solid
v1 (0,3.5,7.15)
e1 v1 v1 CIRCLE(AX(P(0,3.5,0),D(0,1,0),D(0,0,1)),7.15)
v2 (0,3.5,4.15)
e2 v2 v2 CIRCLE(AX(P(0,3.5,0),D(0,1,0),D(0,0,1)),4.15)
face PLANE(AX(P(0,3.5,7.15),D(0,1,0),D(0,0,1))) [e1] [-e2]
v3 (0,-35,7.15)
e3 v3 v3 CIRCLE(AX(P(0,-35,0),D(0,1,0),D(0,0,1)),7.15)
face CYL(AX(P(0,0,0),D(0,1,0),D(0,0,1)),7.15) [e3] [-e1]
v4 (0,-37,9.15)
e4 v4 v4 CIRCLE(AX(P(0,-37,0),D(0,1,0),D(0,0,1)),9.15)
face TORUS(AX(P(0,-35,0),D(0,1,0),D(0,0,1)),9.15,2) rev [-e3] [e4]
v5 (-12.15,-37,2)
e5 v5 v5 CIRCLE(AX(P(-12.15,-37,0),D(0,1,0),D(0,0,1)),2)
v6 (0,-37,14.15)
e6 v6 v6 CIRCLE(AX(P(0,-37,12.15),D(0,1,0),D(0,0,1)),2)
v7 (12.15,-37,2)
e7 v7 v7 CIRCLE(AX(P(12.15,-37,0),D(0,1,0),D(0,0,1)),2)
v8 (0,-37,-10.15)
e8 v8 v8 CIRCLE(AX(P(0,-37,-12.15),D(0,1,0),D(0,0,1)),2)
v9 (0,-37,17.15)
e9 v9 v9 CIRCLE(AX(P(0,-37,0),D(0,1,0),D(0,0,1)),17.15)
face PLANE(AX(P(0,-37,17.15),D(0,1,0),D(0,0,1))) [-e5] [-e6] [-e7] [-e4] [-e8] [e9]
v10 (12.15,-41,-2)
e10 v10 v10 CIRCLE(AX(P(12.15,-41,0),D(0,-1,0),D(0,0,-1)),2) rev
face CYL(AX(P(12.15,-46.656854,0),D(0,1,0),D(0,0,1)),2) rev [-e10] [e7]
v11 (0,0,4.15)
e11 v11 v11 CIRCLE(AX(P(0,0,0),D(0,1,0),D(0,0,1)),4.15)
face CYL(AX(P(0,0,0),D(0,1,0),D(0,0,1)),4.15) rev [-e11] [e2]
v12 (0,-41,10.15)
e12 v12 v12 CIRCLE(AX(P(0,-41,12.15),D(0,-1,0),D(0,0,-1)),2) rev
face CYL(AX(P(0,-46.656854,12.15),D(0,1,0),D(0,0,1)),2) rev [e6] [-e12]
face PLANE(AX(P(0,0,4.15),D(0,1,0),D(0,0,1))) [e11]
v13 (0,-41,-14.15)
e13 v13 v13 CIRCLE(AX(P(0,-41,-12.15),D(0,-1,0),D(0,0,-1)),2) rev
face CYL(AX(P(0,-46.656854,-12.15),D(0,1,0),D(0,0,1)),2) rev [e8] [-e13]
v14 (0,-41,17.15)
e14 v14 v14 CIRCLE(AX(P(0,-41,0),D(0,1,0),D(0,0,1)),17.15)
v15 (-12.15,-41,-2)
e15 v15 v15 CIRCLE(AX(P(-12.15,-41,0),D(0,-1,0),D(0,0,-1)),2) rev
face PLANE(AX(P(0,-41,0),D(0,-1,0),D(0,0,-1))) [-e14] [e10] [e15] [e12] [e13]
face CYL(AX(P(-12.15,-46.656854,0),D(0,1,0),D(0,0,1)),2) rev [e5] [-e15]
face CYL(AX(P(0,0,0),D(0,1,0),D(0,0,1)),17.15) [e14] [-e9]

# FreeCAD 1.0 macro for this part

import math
import FreeCAD as App
import Part
import Sketcher

doc = App.newDocument("Part")
body = doc.addObject("PartDesign::Body", "Body")

# Sketch on YZ plane
sketch1 = doc.addObject("Sketcher::SketchObject", "Sketch")
body.addObject(sketch1)
sketch1.AttachmentSupport = (doc.YZ_Plane, [""])
sketch1.MapMode = "FlatFace"
sketch1.addGeometry([
    Part.LineSegment(App.Vector(3.5, 4.15, 0), App.Vector(3.5, 7.15, 0)),  # 0
    Part.LineSegment(App.Vector(3.5, 7.15, 0), App.Vector(-35, 7.15, 0)),  # 1
    Part.ArcOfCircle(Part.Circle(App.Vector(-35, 9.15, 0), App.Vector(0, 0, 1), 2), math.radians(-180), math.radians(-90)),  # 2
    Part.LineSegment(App.Vector(-37, 9.15, 0), App.Vector(-37, 17.15, 0)),  # 3
    Part.LineSegment(App.Vector(-37, 17.15, 0), App.Vector(-41, 17.15, 0)),  # 4
    Part.LineSegment(App.Vector(-41, 17.15, 0), App.Vector(-41, 0, 0)),  # 5
    Part.LineSegment(App.Vector(-41, 0, 0), App.Vector(0, 0, 0)),  # 6
    Part.LineSegment(App.Vector(0, 0, 0), App.Vector(0, 4.15, 0)),  # 7
    Part.LineSegment(App.Vector(0, 4.15, 0), App.Vector(3.5, 4.15, 0)),  # 8
], False)
sketch1.addConstraint([
    Sketcher.Constraint("Coincident", 0, 2, 1, 1),
    Sketcher.Constraint("Tangent", 1, 2, 2, 2),
    Sketcher.Constraint("Tangent", 2, 1, 3, 1),
    Sketcher.Constraint("Coincident", 3, 2, 4, 1),
    Sketcher.Constraint("Coincident", 4, 2, 5, 1),
    Sketcher.Constraint("Coincident", 5, 2, 6, 1),
    Sketcher.Constraint("Coincident", 6, 2, 7, 1),
    Sketcher.Constraint("Coincident", 7, 2, 8, 1),
    Sketcher.Constraint("Coincident", 8, 2, 0, 1),
    Sketcher.Constraint("Vertical", 0),
    Sketcher.Constraint("Horizontal", 1),
    Sketcher.Constraint("Vertical", 3),
    Sketcher.Constraint("Horizontal", 4),
    Sketcher.Constraint("Vertical", 5),
    Sketcher.Constraint("Horizontal", 6),
    Sketcher.Constraint("Vertical", 7),
    Sketcher.Constraint("Horizontal", 8),
    Sketcher.Constraint("Coincident", 6, 2, -1, 1),
    Sketcher.Constraint("Radius", 2, 2.0),
    Sketcher.Constraint("DistanceX", 4, 2, 4, 1, 4.0),
    Sketcher.Constraint("DistanceX", 6, 1, 6, 2, 41.0),
    Sketcher.Constraint("DistanceY", 0, 1, 0, 2, 3.0),
    Sketcher.Constraint("DistanceY", 3, 1, 3, 2, 8.0),
    Sketcher.Constraint("DistanceX", 1, 2, 1, 1, 38.5),
    Sketcher.Constraint("DistanceY", 5, 2, 5, 1, 17.15),
])
revolution = doc.addObject("PartDesign::Revolution", "Revolution")
body.addObject(revolution)
revolution.Profile = sketch1
revolution.ReferenceAxis = (sketch1, ["H_Axis"])
revolution.Angle = 360

# Sketch on XZ plane
sketch2 = doc.addObject("Sketcher::SketchObject", "Sketch001")
body.addObject(sketch2)
sketch2.AttachmentSupport = (doc.XZ_Plane, [""])
sketch2.MapMode = "FlatFace"
sketch2.AttachmentOffset = App.Placement(App.Vector(0, 0, 37), App.Rotation())
sketch2.addGeometry([
    Part.Circle(App.Vector(0, -12.15, 0), App.Vector(0, 0, 1), 2),
    Part.Circle(App.Vector(12.15, 0, 0), App.Vector(0, 0, 1), 2),
    Part.Circle(App.Vector(0, 12.15, 0), App.Vector(0, 0, 1), 2),
    Part.Circle(App.Vector(-12.15, 0, 0), App.Vector(0, 0, 1), 2),
], False)
sketch2.addConstraint([
    Sketcher.Constraint("Equal", 0, 1),
    Sketcher.Constraint("Equal", 1, 2),
    Sketcher.Constraint("Equal", 2, 3),
    Sketcher.Constraint("Symmetric", 0, 3, 2, 3, -1, 1),
    Sketcher.Constraint("Symmetric", 1, 3, 3, 3, -1, 1),
    Sketcher.Constraint("PointOnObject", 0, 3, -2),
    Sketcher.Constraint("PointOnObject", 1, 3, -1),
    Sketcher.Constraint("Diameter", 0, 4.0),
    Sketcher.Constraint("DistanceY", 0, 3, 2, 3, 24.3),
    Sketcher.Constraint("DistanceX", 3, 3, 1, 3, 24.3),
])
pocket1 = doc.addObject("PartDesign::Pocket", "Pocket")
body.addObject(pocket1)
pocket1.Profile = sketch2
pocket1.Length = 4
pocket1.Reversed = True

doc.recompute()
